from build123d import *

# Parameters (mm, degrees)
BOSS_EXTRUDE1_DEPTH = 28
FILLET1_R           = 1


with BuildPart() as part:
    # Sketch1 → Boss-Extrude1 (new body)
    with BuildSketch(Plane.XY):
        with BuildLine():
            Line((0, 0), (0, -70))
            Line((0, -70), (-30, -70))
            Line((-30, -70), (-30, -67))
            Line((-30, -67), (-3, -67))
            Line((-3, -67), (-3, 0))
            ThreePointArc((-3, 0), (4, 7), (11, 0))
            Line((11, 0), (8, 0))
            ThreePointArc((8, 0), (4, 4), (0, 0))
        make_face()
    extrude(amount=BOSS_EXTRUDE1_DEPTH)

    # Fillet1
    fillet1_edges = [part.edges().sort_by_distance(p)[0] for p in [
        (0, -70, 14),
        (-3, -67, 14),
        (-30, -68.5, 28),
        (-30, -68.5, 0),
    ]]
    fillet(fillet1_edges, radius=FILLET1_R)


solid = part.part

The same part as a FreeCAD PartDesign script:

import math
import FreeCAD as App
import Part
import Sketcher
from FreeCAD import Vector


def edges_at(feature, points):
    """Names of the edges that pass closest to the given points."""
    edges = feature.Shape.Edges
    near = lambda p: min(range(len(edges)), key=lambda i: edges[i].distToShape(Part.Vertex(*p))[0])
    return sorted({f"Edge{near(p) + 1}" for p in points})

doc = App.newDocument("Part")
body = doc.addObject("PartDesign::Body", "Body")

sketch1 = doc.addObject("Sketcher::SketchObject", "Sketch")
body.addObject(sketch1)
sketch1.AttachmentSupport = (doc.XY_Plane, [""])
sketch1.MapMode = "FlatFace"
sketch1.addGeometry([
    Part.LineSegment(Vector(0, -70, 0), Vector(0, 0, 0)),
    Part.ArcOfCircle(Part.Circle(Vector(4, 0, 0), Vector(0, 0, 1), 4), math.radians(0), math.radians(180)),
    Part.LineSegment(Vector(8, 0, 0), Vector(11, 0, 0)),
    Part.ArcOfCircle(Part.Circle(Vector(4, 0, 0), Vector(0, 0, 1), 7), math.radians(0), math.radians(180)),
    Part.LineSegment(Vector(-3, 0, 0), Vector(-3, -67, 0)),
    Part.LineSegment(Vector(-3, -67, 0), Vector(-30, -67, 0)),
    Part.LineSegment(Vector(-30, -67, 0), Vector(-30, -70, 0)),
    Part.LineSegment(Vector(-30, -70, 0), Vector(0, -70, 0)),
], False)
sketch1.addConstraint([
    Sketcher.Constraint("Tangent", 0, 2, 1, 2),
    Sketcher.Constraint("Coincident", 1, 1, 2, 1),
    Sketcher.Constraint("Coincident", 2, 2, 3, 1),
    Sketcher.Constraint("Tangent", 3, 2, 4, 1),
    Sketcher.Constraint("Coincident", 4, 2, 5, 1),
    Sketcher.Constraint("Coincident", 5, 2, 6, 1),
    Sketcher.Constraint("Coincident", 6, 2, 7, 1),
    Sketcher.Constraint("Coincident", 7, 2, 0, 1),
    Sketcher.Constraint("Vertical", 0),
    Sketcher.Constraint("Horizontal", 2),
    Sketcher.Constraint("Vertical", 4),
    Sketcher.Constraint("Horizontal", 5),
    Sketcher.Constraint("Vertical", 6),
    Sketcher.Constraint("Horizontal", 7),
    Sketcher.Constraint("Coincident", 0, 2, -1, 1),
    Sketcher.Constraint("Coincident", 3, 3, 1, 3),
    Sketcher.Constraint("PointOnObject", 1, 1, -1),
    Sketcher.Constraint("Equal", 2, 6),
    Sketcher.Constraint("Radius", 1, 4.0),
    Sketcher.Constraint("Radius", 3, 7.0),
    Sketcher.Constraint("DistanceX", 5, 2, 5, 1, 27.0),
    Sketcher.Constraint("DistanceY", 0, 1, 0, 2, 70.0),
])
pad1 = doc.addObject("PartDesign::Pad", "Pad")
body.addObject(pad1)
pad1.Profile = sketch1
pad1.Length = 28
doc.recompute()

fillet = doc.addObject("PartDesign::Fillet", "Fillet")
body.addObject(fillet)
fillet.Base = (pad1, edges_at(pad1, [
    (0, -70, 14),
    (-3, -67, 14),
    (-30, -68.5, 28),
    (-30, -68.5, 0),
]))
fillet.Radius = 1

doc.recompute()
